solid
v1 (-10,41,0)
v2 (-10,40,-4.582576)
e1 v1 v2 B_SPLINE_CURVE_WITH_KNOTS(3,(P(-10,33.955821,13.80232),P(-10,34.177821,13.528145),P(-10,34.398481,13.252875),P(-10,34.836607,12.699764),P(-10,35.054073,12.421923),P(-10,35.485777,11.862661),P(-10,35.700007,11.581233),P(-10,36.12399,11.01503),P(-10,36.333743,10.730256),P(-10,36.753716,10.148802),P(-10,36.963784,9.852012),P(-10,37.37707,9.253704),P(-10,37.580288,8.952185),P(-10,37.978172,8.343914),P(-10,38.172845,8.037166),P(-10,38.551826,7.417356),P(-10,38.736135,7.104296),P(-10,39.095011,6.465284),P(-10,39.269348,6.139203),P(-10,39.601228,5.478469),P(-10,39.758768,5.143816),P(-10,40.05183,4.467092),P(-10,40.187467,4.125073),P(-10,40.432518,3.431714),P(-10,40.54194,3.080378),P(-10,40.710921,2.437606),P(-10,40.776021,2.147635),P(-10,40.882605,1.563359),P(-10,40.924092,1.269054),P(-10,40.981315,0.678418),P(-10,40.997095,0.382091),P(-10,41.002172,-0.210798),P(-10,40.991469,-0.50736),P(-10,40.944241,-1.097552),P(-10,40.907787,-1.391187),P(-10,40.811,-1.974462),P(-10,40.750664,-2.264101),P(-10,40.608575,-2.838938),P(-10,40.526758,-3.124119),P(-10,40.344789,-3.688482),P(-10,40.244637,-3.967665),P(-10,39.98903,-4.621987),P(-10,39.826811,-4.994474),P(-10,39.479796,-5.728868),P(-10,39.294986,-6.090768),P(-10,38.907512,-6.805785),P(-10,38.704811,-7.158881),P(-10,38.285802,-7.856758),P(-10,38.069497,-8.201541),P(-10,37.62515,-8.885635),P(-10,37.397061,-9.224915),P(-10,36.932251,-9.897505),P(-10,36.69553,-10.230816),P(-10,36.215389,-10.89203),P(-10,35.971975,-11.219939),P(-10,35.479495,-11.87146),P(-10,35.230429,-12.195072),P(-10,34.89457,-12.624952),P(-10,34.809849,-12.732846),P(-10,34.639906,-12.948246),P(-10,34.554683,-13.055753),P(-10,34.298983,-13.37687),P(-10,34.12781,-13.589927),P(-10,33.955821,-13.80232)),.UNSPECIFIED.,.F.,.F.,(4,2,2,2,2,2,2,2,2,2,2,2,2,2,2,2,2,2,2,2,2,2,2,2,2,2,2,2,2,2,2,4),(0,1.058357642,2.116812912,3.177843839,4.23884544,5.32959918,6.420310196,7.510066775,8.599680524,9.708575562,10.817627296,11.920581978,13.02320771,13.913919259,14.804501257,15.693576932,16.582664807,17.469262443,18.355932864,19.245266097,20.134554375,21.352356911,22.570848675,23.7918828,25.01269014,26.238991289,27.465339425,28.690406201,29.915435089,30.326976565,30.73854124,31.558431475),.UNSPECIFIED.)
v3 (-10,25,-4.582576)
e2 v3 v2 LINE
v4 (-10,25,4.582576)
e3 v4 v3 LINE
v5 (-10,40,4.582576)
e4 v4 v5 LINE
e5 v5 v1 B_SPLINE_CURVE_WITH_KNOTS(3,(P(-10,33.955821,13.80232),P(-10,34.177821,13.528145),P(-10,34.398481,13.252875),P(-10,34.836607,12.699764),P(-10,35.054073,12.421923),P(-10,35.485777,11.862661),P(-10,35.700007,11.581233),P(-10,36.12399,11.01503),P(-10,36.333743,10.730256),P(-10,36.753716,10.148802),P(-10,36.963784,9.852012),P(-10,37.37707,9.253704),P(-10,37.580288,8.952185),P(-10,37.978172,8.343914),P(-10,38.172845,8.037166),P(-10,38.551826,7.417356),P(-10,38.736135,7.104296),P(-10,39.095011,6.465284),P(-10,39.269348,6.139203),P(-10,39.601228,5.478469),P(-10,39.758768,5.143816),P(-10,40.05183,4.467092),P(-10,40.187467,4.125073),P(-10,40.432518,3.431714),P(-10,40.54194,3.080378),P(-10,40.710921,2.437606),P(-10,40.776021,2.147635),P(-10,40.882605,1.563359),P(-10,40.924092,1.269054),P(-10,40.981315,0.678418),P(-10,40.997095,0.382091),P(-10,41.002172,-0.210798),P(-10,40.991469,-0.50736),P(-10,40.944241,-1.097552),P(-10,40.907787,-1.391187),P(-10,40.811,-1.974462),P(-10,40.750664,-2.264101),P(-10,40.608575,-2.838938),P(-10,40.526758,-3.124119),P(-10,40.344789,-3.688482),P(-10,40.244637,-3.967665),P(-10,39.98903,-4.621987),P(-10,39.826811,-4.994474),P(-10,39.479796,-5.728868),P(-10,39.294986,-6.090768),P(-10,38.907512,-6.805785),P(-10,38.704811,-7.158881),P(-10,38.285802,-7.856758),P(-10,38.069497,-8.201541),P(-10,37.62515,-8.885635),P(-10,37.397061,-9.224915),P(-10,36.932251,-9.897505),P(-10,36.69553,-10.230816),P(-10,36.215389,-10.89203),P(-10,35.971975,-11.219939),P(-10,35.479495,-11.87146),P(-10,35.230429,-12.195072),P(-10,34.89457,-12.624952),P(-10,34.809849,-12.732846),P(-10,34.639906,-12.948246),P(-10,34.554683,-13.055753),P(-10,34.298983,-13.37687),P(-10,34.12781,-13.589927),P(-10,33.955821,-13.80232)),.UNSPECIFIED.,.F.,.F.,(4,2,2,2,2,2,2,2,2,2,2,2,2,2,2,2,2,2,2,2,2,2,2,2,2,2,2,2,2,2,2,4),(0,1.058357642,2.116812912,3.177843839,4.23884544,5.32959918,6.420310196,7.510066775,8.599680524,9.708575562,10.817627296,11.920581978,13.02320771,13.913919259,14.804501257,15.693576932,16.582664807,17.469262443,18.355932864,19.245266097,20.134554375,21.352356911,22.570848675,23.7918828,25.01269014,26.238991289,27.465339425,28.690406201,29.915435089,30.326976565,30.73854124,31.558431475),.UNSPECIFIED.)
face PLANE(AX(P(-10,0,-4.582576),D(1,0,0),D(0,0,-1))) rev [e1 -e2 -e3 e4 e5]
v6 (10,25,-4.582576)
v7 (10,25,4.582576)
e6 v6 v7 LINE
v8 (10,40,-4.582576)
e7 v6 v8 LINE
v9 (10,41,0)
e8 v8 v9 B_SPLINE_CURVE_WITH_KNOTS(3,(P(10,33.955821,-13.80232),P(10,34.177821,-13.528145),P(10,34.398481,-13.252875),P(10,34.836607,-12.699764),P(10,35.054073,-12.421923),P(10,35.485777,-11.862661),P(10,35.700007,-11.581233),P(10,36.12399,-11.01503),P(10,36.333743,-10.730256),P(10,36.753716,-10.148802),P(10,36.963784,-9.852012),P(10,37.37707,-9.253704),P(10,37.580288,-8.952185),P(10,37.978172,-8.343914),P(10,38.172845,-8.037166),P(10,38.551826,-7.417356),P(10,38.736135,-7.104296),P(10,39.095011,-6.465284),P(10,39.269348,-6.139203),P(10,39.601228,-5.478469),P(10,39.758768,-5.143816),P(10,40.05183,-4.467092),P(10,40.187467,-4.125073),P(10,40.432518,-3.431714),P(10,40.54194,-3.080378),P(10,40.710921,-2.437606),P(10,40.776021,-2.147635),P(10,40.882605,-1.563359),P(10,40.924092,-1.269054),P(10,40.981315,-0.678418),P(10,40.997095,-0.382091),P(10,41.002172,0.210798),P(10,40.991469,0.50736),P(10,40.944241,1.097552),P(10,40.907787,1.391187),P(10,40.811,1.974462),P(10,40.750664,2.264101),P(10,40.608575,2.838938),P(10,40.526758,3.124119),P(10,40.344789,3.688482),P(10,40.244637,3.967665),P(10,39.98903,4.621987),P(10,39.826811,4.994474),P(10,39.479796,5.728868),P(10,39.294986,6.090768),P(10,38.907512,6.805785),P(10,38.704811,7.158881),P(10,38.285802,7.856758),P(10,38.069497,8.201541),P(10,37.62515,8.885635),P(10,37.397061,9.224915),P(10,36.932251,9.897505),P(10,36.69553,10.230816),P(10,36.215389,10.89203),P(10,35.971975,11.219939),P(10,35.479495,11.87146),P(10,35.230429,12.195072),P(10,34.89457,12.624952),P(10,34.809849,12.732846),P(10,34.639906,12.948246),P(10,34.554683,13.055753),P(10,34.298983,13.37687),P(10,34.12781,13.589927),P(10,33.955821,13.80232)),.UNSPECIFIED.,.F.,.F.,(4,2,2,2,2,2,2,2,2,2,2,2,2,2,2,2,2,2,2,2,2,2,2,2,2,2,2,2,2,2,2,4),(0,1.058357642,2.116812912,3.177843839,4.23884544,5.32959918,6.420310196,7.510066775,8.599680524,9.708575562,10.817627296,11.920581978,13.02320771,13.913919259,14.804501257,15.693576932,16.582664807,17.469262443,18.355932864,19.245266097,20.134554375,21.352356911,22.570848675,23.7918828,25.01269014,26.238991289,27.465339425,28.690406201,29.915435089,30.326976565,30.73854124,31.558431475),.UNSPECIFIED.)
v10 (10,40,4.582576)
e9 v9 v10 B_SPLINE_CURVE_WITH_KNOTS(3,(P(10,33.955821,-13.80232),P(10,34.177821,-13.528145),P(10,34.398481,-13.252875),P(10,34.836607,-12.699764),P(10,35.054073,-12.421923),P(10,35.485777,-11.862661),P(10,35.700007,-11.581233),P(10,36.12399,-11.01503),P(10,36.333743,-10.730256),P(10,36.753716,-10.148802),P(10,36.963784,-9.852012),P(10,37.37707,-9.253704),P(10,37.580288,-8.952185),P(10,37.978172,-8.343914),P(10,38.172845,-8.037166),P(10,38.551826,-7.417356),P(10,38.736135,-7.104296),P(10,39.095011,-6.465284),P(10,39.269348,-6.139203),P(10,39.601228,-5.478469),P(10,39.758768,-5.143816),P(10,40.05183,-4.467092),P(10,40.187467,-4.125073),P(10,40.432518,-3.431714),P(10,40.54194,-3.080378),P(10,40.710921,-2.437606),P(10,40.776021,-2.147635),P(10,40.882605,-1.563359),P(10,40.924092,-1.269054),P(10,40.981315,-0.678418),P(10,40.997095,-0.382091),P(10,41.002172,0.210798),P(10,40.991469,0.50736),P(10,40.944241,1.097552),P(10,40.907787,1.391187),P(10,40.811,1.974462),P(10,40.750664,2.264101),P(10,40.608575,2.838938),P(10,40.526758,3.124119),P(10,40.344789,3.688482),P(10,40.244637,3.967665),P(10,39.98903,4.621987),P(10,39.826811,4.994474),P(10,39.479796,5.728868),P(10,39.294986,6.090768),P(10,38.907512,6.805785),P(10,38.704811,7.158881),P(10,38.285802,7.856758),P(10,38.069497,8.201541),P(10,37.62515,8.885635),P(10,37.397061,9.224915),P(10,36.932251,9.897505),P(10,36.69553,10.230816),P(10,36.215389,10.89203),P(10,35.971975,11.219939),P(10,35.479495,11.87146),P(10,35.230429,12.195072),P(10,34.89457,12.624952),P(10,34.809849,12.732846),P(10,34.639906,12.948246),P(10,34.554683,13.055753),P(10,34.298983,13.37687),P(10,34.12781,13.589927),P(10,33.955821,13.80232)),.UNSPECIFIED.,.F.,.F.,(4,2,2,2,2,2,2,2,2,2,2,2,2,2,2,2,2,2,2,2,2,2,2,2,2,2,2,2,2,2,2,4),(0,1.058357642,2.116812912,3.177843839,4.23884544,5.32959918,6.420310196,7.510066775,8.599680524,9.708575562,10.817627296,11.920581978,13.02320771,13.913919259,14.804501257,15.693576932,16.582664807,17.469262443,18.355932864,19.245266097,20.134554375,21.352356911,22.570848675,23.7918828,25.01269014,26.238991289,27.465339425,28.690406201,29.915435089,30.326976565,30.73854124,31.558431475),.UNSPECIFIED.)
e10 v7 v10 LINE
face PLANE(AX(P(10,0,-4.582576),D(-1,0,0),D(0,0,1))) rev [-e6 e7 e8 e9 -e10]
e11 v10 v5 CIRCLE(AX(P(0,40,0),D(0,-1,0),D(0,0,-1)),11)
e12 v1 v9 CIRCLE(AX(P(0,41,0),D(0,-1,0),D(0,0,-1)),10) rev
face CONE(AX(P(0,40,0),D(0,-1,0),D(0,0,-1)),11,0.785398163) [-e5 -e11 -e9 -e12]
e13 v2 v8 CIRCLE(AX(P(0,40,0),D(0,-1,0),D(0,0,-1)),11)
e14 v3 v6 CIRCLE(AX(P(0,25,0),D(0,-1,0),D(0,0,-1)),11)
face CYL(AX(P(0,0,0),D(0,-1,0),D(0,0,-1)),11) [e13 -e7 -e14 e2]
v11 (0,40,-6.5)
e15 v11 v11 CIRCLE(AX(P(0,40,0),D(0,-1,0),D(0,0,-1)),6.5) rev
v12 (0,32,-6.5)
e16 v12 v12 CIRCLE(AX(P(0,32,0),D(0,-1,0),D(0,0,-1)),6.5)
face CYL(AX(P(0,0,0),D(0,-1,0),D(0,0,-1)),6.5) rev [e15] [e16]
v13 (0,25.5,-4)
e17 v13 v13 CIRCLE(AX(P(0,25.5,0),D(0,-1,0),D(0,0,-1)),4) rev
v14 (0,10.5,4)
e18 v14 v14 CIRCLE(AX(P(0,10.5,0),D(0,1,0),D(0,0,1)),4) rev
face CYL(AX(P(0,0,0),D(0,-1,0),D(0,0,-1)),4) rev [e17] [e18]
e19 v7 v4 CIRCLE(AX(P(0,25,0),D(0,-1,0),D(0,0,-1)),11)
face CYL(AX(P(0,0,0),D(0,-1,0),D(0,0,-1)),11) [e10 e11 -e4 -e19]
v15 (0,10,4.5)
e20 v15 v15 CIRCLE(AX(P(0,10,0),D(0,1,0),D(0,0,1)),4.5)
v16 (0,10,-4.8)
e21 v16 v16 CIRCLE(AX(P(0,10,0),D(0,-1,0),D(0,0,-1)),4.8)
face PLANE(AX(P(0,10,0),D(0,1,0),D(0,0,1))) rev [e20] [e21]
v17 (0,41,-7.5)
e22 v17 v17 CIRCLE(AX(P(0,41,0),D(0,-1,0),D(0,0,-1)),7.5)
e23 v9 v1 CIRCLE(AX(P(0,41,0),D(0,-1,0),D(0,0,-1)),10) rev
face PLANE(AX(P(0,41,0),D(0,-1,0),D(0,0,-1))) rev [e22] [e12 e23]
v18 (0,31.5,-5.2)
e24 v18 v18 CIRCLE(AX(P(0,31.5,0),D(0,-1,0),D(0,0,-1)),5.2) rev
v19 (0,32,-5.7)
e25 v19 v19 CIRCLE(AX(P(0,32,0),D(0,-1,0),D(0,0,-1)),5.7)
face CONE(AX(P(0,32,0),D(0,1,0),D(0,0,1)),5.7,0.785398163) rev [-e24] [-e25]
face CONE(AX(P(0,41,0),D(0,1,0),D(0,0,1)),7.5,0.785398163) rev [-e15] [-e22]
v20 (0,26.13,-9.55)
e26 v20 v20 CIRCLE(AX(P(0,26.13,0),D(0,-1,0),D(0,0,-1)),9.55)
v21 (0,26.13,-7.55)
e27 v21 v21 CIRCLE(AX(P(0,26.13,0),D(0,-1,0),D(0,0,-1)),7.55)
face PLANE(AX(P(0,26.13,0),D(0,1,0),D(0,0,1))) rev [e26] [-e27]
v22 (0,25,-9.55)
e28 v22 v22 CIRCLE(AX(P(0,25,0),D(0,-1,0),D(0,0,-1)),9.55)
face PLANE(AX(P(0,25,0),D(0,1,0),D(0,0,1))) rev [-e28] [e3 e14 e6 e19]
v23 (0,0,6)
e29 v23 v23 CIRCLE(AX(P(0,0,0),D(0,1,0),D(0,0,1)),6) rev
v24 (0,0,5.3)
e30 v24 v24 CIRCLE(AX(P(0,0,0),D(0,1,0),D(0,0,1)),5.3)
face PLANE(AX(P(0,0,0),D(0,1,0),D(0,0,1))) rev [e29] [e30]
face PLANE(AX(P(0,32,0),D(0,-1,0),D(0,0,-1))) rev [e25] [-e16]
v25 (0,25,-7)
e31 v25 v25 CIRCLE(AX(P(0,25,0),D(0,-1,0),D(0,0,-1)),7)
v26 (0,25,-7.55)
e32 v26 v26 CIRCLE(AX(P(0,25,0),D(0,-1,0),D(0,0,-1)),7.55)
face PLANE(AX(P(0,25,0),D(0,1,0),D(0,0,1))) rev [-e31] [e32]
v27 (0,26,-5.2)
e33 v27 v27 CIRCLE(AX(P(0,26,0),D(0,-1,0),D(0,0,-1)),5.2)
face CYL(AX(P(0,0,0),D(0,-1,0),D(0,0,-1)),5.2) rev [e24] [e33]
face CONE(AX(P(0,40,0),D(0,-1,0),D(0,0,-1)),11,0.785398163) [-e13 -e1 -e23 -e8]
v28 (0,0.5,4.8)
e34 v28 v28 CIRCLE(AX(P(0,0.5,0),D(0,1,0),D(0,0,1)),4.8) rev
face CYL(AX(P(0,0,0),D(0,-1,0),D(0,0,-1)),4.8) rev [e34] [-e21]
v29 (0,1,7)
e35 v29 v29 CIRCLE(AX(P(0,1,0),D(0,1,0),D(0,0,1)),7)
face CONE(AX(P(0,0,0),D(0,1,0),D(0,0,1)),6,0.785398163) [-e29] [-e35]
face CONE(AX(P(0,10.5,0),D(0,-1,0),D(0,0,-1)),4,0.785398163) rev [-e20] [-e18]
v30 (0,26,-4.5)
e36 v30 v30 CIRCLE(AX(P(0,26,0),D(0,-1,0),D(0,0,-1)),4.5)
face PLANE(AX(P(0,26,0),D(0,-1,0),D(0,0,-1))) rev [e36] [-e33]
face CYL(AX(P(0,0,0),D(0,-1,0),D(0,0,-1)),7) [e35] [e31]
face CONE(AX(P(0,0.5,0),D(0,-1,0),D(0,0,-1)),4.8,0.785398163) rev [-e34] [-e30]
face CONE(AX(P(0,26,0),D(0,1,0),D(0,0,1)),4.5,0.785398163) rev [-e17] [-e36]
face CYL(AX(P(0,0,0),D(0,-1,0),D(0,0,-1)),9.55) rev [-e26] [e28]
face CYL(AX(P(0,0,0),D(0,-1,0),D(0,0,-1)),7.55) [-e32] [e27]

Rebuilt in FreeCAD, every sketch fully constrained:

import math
import FreeCAD as App
import Part
import Sketcher


def edges_at(feature, points):
    """Names of the edges that pass closest to the given points."""
    edges = feature.Shape.Edges
    near = lambda p: min(range(len(edges)), key=lambda i: edges[i].distToShape(Part.Vertex(*p))[0])
    return sorted({f"Edge{near(p) + 1}" for p in points})

doc = App.newDocument("Part")
body = doc.addObject("PartDesign::Body", "Body")

# Sketch on XY plane
sketch1 = body.newObject("Sketcher::SketchObject", "Sketch")
sketch1.AttachmentSupport = (doc.getObject("XY_Plane"), [""])
sketch1.MapMode = "FlatFace"
sketch1.addGeometry([
    Part.LineSegment(App.Vector(4, 10, 0), App.Vector(4.8, 10, 0)),  # 0
    Part.LineSegment(App.Vector(4.8, 10, 0), App.Vector(4.8, 0, 0)),  # 1
    Part.LineSegment(App.Vector(4.8, 0, 0), App.Vector(7, 0, 0)),  # 2
    Part.LineSegment(App.Vector(7, 0, 0), App.Vector(7, 25, 0)),  # 3
    Part.LineSegment(App.Vector(7, 25, 0), App.Vector(7.5, 25, 0)),  # 4
    Part.LineSegment(App.Vector(7.5, 25, 0), App.Vector(7.5, 26.1, 0)),  # 5
    Part.LineSegment(App.Vector(7.5, 26.1, 0), App.Vector(9.6, 26.1, 0)),  # 6
    Part.LineSegment(App.Vector(9.6, 26.1, 0), App.Vector(9.6, 25, 0)),  # 7
    Part.LineSegment(App.Vector(9.6, 25, 0), App.Vector(11, 25, 0)),  # 8
    Part.LineSegment(App.Vector(11, 25, 0), App.Vector(11, 41, 0)),  # 9
    Part.LineSegment(App.Vector(11, 41, 0), App.Vector(6.5, 41, 0)),  # 10
    Part.LineSegment(App.Vector(6.5, 41, 0), App.Vector(6.5, 32, 0)),  # 11
    Part.LineSegment(App.Vector(6.5, 32, 0), App.Vector(5.2, 32, 0)),  # 12
    Part.LineSegment(App.Vector(5.2, 32, 0), App.Vector(5.2, 26, 0)),  # 13
    Part.LineSegment(App.Vector(5.2, 26, 0), App.Vector(4, 26, 0)),  # 14
    Part.LineSegment(App.Vector(4, 26, 0), App.Vector(4, 10, 0)),  # 15
], False)
sketch1.addConstraint([
    Sketcher.Constraint("Coincident", 0, 2, 1, 1),
    Sketcher.Constraint("Coincident", 1, 2, 2, 1),
    Sketcher.Constraint("Coincident", 2, 2, 3, 1),
    Sketcher.Constraint("Coincident", 3, 2, 4, 1),
    Sketcher.Constraint("Coincident", 4, 2, 5, 1),
    Sketcher.Constraint("Coincident", 5, 2, 6, 1),
    Sketcher.Constraint("Coincident", 6, 2, 7, 1),
    Sketcher.Constraint("Coincident", 7, 2, 8, 1),
    Sketcher.Constraint("Coincident", 8, 2, 9, 1),
    Sketcher.Constraint("Coincident", 9, 2, 10, 1),
    Sketcher.Constraint("Coincident", 10, 2, 11, 1),
    Sketcher.Constraint("Coincident", 11, 2, 12, 1),
    Sketcher.Constraint("Coincident", 12, 2, 13, 1),
    Sketcher.Constraint("Coincident", 13, 2, 14, 1),
    Sketcher.Constraint("Coincident", 14, 2, 15, 1),
    Sketcher.Constraint("Coincident", 15, 2, 0, 1),
    Sketcher.Constraint("Horizontal", 0),
    Sketcher.Constraint("Vertical", 1),
    Sketcher.Constraint("Horizontal", 2),
    Sketcher.Constraint("Vertical", 3),
    Sketcher.Constraint("Horizontal", 4),
    Sketcher.Constraint("Vertical", 5),
    Sketcher.Constraint("Horizontal", 6),
    Sketcher.Constraint("Vertical", 7),
    Sketcher.Constraint("Horizontal", 8),
    Sketcher.Constraint("Vertical", 9),
    Sketcher.Constraint("Horizontal", 10),
    Sketcher.Constraint("Vertical", 11),
    Sketcher.Constraint("Horizontal", 12),
    Sketcher.Constraint("Vertical", 13),
    Sketcher.Constraint("Horizontal", 14),
    Sketcher.Constraint("Vertical", 15),
    Sketcher.Constraint("PointOnObject", 1, 2, -1),
    Sketcher.Constraint("Horizontal", 4, 2, 7, 2),
    Sketcher.Constraint("Equal", 9, 15),
    Sketcher.Constraint("DistanceX", 6, 1, 6, 2, 2.0),
    Sketcher.Constraint("DistanceY", 1, 2, 1, 1, 10.0),
    Sketcher.Constraint("DistanceY", 3, 1, 3, 2, 25.0),
    Sketcher.Constraint("DistanceY", 9, 1, 9, 2, 16.0),
    Sketcher.Constraint("DistanceY", 11, 2, 11, 1, 9.0),
    Sketcher.Constraint("DistanceX", 0, 1, 0, 2, 0.8),
    Sketcher.Constraint("DistanceX", 2, 1, 2, 2, 2.2),
    Sketcher.Constraint("DistanceX", 10, 2, 10, 1, 4.5),
    Sketcher.Constraint("DistanceX", 12, 2, 12, 1, 1.3),
    Sketcher.Constraint("DistanceX", 14, 2, 14, 1, 1.2),
    Sketcher.Constraint("DistanceX", -1, 1, 2, 2, 7.0),
    Sketcher.Constraint("DistanceX", 4, 1, 4, 2, 0.55),
    Sketcher.Constraint("DistanceY", 5, 1, 5, 2, 1.13),
])
revolution = body.newObject("PartDesign::Revolution", "Revolution")
revolution.Profile = sketch1
revolution.ReferenceAxis = (sketch1, ["V_Axis"])
revolution.Angle = 360
doc.recompute()

chamfer = body.newObject("PartDesign::Chamfer", "Chamfer")
chamfer.Base = (revolution, edges_at(revolution, [(0, 41, 11)]))
chamfer.Size = 1

# Sketch on XZ plane
sketch2 = body.newObject("Sketcher::SketchObject", "Sketch001")
sketch2.AttachmentSupport = (doc.getObject("XZ_Plane"), [""])
sketch2.MapMode = "FlatFace"
sketch2.AttachmentOffset = App.Placement(App.Vector(0, 0, -41), App.Rotation())
sketch2.addGeometry([
    Part.LineSegment(App.Vector(-10, 5, 0), App.Vector(-10, -5, 0)),
    Part.ArcOfCircle(Part.Circle(App.Vector(0, 0, 0), App.Vector(0, 0, 1), 11), math.radians(155), math.radians(205)),
    Part.LineSegment(App.Vector(10, -5, 0), App.Vector(10, 5, 0)),
    Part.ArcOfCircle(Part.Circle(App.Vector(0, 0, 0), App.Vector(0, 0, 1), 11), math.radians(-25), math.radians(25)),
], False)
sketch2.addConstraint([
    Sketcher.Constraint("Coincident", 0, 1, 1, 1),
    Sketcher.Constraint("Coincident", 1, 2, 0, 2),
    Sketcher.Constraint("Coincident", 2, 1, 3, 1),
    Sketcher.Constraint("Coincident", 3, 2, 2, 2),
    Sketcher.Constraint("Vertical", 0),
    Sketcher.Constraint("Vertical", 2),
    Sketcher.Constraint("Coincident", 1, 3, -1, 1),
    Sketcher.Constraint("Coincident", 3, 3, -1, 1),
    Sketcher.Constraint("Equal", 1, 3),
    Sketcher.Constraint("Horizontal", 1, 2, 2, 1),
    Sketcher.Constraint("Radius", 1, 11.0),
    Sketcher.Constraint("DistanceX", 0, 1, -1, 1, 10.0),
])
pocket1 = body.newObject("PartDesign::Pocket", "Pocket")
pocket1.Profile = sketch2
pocket1.Type = "ThroughAll"
pocket1.Reversed = True
doc.recompute()

chamfer2 = body.newObject("PartDesign::Chamfer", "Chamfer001")
chamfer2.Base = (pocket1, edges_at(pocket1, [(0, 41, 6.5), (0, 0, 7)]))
chamfer2.Size = 1
doc.recompute()

chamfer3 = body.newObject("PartDesign::Chamfer", "Chamfer002")
chamfer3.Base = (chamfer2, edges_at(chamfer2, [
    (0, 10, 4),
    (0, 26, 4),
    (0, 32, 5.2),
    (0, 0, 4.8),
]))
chamfer3.Size = 0.5

doc.recompute()
